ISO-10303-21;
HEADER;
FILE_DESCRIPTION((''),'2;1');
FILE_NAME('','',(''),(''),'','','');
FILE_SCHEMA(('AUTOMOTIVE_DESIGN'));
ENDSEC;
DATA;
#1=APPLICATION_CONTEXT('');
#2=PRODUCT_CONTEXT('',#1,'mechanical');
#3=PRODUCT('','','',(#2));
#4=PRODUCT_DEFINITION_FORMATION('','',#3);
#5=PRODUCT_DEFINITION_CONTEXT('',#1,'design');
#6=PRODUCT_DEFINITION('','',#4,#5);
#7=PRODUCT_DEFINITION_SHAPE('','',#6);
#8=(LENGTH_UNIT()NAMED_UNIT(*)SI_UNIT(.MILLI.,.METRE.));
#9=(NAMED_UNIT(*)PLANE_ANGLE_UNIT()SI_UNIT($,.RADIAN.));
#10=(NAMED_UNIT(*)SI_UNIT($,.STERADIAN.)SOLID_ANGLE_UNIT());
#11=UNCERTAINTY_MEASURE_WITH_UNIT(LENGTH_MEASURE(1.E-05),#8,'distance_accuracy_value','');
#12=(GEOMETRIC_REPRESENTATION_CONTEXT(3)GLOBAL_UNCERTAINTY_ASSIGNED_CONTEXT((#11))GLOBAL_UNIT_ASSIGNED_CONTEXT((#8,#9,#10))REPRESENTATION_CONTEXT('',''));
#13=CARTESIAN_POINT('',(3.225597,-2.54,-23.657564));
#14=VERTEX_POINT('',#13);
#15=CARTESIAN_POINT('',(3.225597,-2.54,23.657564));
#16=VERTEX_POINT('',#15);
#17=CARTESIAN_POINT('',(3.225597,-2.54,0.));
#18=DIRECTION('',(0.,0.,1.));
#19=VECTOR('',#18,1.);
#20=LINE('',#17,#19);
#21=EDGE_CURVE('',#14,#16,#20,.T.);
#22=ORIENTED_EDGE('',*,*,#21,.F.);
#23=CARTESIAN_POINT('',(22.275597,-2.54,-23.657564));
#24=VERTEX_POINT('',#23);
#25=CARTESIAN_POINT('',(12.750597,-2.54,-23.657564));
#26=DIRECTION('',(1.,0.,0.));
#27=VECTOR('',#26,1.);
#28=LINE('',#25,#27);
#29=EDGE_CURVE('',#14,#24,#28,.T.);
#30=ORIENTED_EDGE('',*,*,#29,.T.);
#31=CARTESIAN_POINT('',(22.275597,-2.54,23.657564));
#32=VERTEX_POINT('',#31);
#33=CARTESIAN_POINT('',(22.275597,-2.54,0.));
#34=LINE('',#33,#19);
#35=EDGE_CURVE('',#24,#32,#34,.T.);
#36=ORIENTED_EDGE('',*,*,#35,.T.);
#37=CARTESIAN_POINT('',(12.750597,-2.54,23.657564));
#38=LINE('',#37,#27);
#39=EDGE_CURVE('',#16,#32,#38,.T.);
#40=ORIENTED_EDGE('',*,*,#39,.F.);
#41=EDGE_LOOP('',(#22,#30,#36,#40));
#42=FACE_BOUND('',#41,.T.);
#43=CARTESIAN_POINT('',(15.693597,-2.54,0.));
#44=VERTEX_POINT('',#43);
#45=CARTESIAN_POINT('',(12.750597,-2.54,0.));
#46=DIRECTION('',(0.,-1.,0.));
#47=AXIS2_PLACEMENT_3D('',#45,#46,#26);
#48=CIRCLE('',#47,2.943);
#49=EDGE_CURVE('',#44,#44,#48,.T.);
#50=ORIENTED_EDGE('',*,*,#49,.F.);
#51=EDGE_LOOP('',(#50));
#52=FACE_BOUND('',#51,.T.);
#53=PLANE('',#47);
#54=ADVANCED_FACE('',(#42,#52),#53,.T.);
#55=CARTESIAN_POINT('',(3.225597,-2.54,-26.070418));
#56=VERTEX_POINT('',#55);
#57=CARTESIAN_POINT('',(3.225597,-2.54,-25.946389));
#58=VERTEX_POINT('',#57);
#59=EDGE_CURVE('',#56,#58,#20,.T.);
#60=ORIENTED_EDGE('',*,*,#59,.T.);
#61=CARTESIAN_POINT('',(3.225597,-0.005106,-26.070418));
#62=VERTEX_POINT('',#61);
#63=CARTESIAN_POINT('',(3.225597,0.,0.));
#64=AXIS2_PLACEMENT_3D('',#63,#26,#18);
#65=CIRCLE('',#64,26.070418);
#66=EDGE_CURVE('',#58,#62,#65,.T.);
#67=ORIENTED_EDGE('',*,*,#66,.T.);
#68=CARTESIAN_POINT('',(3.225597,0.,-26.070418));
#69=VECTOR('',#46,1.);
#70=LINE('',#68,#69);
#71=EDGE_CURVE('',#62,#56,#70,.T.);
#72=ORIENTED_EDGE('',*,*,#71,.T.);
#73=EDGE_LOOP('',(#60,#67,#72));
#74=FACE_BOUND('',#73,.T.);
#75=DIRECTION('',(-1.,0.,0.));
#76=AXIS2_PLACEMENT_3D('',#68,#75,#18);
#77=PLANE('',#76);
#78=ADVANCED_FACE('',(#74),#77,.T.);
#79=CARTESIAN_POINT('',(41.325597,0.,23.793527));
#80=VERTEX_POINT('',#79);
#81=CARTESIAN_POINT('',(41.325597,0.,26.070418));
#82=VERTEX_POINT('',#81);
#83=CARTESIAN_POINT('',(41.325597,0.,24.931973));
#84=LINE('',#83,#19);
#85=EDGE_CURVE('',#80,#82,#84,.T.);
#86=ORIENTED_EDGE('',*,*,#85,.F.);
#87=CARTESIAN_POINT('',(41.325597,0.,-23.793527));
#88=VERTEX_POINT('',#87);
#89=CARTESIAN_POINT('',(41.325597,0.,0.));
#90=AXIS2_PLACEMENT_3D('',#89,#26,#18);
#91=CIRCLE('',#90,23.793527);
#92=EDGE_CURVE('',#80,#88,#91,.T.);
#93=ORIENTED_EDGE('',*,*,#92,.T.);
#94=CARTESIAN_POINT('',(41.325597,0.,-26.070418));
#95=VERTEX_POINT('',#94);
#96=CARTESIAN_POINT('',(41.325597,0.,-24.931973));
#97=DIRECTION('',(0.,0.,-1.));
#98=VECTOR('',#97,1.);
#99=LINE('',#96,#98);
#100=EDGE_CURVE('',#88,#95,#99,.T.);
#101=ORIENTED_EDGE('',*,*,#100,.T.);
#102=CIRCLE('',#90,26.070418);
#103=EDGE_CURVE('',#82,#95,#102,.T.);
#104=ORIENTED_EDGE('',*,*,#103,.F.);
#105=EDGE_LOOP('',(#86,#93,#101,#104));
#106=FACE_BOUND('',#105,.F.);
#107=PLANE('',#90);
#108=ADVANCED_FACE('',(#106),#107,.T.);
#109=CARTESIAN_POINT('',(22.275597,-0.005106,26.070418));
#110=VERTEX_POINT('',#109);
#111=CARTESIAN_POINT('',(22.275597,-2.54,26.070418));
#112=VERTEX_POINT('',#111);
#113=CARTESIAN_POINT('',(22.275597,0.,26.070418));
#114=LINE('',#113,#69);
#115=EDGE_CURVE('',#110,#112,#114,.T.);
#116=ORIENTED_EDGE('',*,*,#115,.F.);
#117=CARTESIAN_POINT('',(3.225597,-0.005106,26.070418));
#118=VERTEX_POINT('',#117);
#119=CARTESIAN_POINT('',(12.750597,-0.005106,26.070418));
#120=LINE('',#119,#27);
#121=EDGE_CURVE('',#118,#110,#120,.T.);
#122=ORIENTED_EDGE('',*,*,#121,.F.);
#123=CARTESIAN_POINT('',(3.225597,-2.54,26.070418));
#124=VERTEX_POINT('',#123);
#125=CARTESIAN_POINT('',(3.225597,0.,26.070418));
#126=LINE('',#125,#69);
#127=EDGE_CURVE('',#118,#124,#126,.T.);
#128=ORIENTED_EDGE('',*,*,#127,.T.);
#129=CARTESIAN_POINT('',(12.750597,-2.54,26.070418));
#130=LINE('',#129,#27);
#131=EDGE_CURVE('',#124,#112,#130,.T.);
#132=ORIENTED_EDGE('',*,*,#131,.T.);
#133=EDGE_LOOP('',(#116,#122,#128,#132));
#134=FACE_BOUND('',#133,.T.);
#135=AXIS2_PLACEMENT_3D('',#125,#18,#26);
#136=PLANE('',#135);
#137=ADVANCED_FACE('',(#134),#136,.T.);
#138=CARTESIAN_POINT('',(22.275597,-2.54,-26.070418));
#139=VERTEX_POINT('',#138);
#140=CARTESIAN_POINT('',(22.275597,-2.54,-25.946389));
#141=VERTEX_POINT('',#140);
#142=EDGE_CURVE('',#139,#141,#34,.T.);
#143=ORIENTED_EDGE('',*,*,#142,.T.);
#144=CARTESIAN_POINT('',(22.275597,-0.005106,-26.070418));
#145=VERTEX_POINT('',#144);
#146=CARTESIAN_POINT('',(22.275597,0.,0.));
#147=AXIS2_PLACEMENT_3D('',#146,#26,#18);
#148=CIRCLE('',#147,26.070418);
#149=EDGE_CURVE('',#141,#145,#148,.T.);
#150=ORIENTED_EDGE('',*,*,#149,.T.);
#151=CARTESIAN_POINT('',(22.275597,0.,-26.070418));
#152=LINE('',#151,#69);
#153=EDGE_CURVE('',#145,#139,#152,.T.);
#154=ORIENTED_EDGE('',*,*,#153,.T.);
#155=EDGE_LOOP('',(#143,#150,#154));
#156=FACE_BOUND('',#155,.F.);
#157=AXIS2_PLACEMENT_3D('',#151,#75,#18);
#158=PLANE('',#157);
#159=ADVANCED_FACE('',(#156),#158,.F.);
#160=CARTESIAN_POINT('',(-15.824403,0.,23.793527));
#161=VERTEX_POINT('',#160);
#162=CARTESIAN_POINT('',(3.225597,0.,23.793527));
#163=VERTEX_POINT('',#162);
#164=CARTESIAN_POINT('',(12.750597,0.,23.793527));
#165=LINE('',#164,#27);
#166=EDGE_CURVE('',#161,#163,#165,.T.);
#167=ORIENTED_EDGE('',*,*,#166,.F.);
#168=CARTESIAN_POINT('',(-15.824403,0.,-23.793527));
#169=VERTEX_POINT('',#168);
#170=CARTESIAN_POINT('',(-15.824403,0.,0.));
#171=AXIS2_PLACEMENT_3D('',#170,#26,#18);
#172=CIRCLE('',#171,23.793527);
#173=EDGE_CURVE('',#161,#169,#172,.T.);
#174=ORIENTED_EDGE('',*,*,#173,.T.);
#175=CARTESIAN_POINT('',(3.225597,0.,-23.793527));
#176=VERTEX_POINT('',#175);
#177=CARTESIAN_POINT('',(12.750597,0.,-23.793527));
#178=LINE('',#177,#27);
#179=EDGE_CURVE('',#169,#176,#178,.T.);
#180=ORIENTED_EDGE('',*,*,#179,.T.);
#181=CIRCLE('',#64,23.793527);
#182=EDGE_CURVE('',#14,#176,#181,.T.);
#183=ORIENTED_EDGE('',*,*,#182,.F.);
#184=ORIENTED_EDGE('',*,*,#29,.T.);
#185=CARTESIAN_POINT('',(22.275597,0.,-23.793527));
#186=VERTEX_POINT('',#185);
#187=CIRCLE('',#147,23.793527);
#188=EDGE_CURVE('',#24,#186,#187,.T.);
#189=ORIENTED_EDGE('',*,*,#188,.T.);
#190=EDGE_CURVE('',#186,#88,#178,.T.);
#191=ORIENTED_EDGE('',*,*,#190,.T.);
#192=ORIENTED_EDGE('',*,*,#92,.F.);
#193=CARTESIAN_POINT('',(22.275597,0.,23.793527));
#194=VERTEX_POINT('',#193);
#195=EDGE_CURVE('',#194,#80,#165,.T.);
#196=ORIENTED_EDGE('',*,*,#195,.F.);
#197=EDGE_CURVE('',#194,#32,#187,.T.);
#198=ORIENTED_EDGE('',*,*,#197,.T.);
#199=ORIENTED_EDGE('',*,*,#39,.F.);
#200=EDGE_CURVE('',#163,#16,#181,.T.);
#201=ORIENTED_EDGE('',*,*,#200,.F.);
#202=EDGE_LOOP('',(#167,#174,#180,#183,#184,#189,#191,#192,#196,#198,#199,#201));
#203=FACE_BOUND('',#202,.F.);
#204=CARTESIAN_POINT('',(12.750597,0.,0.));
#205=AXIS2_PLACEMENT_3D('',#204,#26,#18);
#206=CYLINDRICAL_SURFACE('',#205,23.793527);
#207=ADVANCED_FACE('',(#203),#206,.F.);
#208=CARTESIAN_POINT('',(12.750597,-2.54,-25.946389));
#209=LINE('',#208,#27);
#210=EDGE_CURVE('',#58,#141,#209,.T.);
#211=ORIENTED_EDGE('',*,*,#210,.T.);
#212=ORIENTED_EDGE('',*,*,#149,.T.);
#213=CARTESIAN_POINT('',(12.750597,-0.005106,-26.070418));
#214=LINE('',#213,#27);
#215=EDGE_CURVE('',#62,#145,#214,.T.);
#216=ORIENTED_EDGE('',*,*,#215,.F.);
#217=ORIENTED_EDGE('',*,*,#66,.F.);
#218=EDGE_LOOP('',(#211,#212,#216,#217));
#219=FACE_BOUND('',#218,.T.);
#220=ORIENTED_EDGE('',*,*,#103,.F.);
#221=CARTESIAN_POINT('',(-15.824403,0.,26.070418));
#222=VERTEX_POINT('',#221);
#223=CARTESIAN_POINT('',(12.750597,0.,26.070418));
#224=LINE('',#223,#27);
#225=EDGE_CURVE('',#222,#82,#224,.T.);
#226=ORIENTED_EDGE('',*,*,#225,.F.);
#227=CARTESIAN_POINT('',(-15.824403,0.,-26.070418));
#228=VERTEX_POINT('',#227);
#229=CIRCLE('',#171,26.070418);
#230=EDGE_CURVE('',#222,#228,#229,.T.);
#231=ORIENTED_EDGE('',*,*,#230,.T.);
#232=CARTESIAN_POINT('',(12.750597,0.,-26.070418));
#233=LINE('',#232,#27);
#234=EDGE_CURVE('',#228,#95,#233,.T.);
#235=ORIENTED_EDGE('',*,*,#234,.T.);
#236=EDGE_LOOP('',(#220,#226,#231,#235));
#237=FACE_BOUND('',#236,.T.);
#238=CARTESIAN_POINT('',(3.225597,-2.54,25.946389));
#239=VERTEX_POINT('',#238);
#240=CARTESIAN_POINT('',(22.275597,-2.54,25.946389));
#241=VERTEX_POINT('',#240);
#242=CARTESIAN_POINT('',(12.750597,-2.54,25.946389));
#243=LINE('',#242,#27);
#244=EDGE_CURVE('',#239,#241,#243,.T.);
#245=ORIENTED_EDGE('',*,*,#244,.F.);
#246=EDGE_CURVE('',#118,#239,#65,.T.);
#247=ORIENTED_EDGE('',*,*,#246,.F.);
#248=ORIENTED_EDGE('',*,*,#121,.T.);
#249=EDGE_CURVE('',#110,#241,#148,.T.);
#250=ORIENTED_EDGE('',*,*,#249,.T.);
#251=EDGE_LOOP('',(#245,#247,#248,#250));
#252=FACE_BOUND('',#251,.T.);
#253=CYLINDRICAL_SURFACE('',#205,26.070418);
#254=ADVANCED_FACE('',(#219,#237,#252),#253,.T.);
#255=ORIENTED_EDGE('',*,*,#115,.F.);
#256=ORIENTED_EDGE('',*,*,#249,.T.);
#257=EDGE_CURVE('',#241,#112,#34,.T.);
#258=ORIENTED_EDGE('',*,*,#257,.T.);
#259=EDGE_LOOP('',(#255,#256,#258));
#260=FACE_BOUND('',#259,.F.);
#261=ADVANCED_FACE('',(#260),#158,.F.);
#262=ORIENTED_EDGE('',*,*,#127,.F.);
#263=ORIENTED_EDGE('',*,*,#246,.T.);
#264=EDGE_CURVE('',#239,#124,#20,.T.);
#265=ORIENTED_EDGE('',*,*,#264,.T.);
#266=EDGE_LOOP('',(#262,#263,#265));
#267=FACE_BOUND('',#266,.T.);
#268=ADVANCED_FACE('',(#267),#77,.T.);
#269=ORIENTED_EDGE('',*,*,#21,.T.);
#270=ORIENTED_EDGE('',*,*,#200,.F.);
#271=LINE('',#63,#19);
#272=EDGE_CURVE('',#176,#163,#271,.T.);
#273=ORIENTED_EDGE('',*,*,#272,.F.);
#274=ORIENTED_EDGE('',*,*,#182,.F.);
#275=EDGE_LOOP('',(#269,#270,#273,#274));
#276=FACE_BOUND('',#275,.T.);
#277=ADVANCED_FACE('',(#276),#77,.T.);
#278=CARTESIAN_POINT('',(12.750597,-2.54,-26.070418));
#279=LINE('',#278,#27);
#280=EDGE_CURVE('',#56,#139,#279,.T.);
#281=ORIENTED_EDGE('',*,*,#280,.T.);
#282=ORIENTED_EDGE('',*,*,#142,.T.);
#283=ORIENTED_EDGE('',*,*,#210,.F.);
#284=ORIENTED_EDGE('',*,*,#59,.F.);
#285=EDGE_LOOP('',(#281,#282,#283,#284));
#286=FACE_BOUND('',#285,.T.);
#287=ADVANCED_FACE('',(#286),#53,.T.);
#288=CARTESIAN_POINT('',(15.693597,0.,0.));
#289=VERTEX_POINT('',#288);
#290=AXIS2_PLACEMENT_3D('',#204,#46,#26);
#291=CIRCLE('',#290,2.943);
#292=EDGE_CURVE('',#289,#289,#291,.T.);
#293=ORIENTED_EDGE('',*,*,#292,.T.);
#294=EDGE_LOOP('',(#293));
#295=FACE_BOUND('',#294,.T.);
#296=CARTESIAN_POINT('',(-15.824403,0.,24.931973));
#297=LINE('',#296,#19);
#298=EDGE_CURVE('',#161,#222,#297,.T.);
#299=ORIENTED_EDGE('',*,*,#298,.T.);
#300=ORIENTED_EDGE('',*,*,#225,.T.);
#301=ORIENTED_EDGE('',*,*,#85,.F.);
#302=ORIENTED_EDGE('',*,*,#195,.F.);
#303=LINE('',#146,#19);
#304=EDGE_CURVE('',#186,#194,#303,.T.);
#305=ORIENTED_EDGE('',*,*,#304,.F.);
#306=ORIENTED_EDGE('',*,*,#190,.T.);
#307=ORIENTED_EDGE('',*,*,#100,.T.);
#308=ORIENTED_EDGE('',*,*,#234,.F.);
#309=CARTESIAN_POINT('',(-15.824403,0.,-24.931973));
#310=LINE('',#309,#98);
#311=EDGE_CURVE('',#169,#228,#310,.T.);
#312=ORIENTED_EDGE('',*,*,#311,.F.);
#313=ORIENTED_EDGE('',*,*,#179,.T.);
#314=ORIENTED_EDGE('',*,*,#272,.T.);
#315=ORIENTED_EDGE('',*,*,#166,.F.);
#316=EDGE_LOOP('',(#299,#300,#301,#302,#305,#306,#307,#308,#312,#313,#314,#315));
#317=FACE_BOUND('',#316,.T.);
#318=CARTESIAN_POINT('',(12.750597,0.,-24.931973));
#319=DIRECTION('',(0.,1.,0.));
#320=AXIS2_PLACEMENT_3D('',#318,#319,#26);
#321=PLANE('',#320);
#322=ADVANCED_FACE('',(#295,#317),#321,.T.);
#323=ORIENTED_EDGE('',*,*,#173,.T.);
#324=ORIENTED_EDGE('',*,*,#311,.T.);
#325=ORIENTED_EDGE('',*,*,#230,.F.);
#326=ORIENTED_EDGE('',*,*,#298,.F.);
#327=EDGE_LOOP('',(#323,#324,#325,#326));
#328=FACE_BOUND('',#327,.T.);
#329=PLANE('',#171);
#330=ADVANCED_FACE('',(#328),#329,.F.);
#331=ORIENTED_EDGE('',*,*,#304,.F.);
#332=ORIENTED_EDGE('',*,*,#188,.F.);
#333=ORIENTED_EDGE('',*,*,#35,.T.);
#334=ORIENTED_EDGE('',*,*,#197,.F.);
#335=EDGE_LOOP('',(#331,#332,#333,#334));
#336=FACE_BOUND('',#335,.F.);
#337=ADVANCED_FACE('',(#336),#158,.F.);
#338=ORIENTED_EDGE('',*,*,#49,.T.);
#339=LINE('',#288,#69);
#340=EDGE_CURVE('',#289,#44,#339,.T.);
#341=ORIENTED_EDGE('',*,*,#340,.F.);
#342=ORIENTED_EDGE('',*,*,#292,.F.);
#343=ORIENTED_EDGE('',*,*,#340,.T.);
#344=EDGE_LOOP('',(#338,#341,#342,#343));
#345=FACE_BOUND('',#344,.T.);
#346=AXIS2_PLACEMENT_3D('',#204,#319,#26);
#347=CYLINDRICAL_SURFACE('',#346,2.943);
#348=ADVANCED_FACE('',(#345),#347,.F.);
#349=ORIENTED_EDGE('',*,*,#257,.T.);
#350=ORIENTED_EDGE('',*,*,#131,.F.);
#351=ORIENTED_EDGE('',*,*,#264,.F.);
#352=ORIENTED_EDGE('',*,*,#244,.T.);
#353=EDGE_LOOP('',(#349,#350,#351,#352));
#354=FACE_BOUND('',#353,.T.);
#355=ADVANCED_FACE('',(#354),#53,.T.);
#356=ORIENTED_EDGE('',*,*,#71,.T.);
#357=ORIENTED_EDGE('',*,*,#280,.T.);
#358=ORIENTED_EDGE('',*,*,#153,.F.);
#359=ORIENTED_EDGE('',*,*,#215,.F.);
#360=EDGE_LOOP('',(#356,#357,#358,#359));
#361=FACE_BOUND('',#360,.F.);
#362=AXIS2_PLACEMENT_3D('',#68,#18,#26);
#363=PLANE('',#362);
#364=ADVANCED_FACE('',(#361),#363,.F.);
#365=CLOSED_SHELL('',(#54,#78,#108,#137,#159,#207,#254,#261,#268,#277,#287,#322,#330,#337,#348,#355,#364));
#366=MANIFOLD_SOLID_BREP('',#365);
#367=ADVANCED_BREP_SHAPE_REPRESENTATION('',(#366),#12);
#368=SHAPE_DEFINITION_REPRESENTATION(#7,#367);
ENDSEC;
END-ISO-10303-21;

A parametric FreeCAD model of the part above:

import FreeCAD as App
import Part
import Sketcher
Q = App.Units.Quantity


def add_polygon(sketch, points):
    """Adds a closed chain of lines whose ends are joined by coincident constraints."""
    first, n = sketch.GeometryCount, len(points)
    for a, b in zip(points, points[1:] + points[:1]):
        sketch.addGeometry(Part.LineSegment(App.Vector(*a, 0), App.Vector(*b, 0)), False)
    for i in range(n):
        sketch.addConstraint(Sketcher.Constraint("Coincident", first + i, 2, first + (i + 1) % n, 1))

doc = App.newDocument("Part")
params = doc.addObject("Spreadsheet::Sheet", "Params")
for row, (alias, value) in enumerate([
    ("sketch1_width", "2.25 in"),
    ("revolution_angle", "180 deg"),
    ("sketch2_width", "0.75 in"),
    ("pad1_length", "0.1 in"),
], start=1):
    params.set(f"A{row}", alias)
    params.set(f"B{row}", "=" + value)
    params.setAlias(f"B{row}", alias)

body = doc.addObject("PartDesign::Body", "Body")

# Sketch on XZ plane
sketch1 = body.newObject("Sketcher::SketchObject", "Sketch")
sketch1.AttachmentSupport = (doc.getObject("XZ_Plane"), [""])
sketch1.MapMode = "FlatFace"
add_polygon(sketch1, [(-15.8, 26.1), (-15.8, 23.8), (41.3, 23.8), (41.3, 26.1)])  # lines 0-3
sketch1.addConstraint(Sketcher.Constraint("Vertical", 0))
sketch1.addConstraint(Sketcher.Constraint("Horizontal", 1))
sketch1.addConstraint(Sketcher.Constraint("Vertical", 2))
sketch1.addConstraint(Sketcher.Constraint("Horizontal", 3))
sketch1.addConstraint(Sketcher.Constraint("DistanceX", 1, 1, 1, 2, Q("2.25 in")))
sketch1.addConstraint(Sketcher.Constraint("DistanceY", 0, 2, 0, 1, Q("2.276891 mm")))
sketch1.addConstraint(Sketcher.Constraint("DistanceY", -1, 1, 2, 2, Q("26.070418 mm")))
sketch1.addConstraint(Sketcher.Constraint("DistanceX", 0, 2, -1, 1, Q("15.824403 mm")))
sketch1.setExpression("Constraints[8]", "Params.sketch1_width")
revolution = body.newObject("PartDesign::Revolution", "Revolution")
revolution.Profile = sketch1
revolution.ReferenceAxis = (sketch1, ["H_Axis"])
revolution.setExpression("Angle", "Params.revolution_angle")

# Sketch on XZ plane
sketch2 = body.newObject("Sketcher::SketchObject", "Sketch001")
sketch2.AttachmentSupport = (doc.getObject("XZ_Plane"), [""])
sketch2.MapMode = "FlatFace"
add_polygon(sketch2, [(3.2, 26.1), (3.2, -26.1), (22.3, -26.1), (22.3, 26.1)])  # lines 0-3
sketch2.addGeometry(Part.Circle(App.Vector(12.8, 0, 0), App.Vector(0, 0, 1), 2.9), False)  # 4
sketch2.addConstraint(Sketcher.Constraint("Vertical", 0))
sketch2.addConstraint(Sketcher.Constraint("Horizontal", 1))
sketch2.addConstraint(Sketcher.Constraint("Vertical", 2))
sketch2.addConstraint(Sketcher.Constraint("Horizontal", 3))
sketch2.addConstraint(Sketcher.Constraint("PointOnObject", 4, 3, -1))
sketch2.addConstraint(Sketcher.Constraint("DistanceX", 1, 1, 1, 2, Q("0.75 in")))
sketch2.addConstraint(Sketcher.Constraint("Diameter", 4, Q("5.886 mm")))
sketch2.addConstraint(Sketcher.Constraint("DistanceX", 0, 2, 4, 3, Q("0.375 in")))
sketch2.addConstraint(Sketcher.Constraint("DistanceY", 0, 2, 0, 1, Q("52.140836 mm")))
sketch2.addConstraint(Sketcher.Constraint("DistanceY", 0, 2, -1, 1, Q("26.070418 mm")))
sketch2.addConstraint(Sketcher.Constraint("DistanceX", -1, 1, 4, 3, Q("12.750597 mm")))
sketch2.setExpression("Constraints[9]", "Params.sketch2_width")
pad1 = body.newObject("PartDesign::Pad", "Pad")
pad1.Profile = sketch2
pad1.setExpression("Length", "Params.pad1_length")

doc.recompute()
